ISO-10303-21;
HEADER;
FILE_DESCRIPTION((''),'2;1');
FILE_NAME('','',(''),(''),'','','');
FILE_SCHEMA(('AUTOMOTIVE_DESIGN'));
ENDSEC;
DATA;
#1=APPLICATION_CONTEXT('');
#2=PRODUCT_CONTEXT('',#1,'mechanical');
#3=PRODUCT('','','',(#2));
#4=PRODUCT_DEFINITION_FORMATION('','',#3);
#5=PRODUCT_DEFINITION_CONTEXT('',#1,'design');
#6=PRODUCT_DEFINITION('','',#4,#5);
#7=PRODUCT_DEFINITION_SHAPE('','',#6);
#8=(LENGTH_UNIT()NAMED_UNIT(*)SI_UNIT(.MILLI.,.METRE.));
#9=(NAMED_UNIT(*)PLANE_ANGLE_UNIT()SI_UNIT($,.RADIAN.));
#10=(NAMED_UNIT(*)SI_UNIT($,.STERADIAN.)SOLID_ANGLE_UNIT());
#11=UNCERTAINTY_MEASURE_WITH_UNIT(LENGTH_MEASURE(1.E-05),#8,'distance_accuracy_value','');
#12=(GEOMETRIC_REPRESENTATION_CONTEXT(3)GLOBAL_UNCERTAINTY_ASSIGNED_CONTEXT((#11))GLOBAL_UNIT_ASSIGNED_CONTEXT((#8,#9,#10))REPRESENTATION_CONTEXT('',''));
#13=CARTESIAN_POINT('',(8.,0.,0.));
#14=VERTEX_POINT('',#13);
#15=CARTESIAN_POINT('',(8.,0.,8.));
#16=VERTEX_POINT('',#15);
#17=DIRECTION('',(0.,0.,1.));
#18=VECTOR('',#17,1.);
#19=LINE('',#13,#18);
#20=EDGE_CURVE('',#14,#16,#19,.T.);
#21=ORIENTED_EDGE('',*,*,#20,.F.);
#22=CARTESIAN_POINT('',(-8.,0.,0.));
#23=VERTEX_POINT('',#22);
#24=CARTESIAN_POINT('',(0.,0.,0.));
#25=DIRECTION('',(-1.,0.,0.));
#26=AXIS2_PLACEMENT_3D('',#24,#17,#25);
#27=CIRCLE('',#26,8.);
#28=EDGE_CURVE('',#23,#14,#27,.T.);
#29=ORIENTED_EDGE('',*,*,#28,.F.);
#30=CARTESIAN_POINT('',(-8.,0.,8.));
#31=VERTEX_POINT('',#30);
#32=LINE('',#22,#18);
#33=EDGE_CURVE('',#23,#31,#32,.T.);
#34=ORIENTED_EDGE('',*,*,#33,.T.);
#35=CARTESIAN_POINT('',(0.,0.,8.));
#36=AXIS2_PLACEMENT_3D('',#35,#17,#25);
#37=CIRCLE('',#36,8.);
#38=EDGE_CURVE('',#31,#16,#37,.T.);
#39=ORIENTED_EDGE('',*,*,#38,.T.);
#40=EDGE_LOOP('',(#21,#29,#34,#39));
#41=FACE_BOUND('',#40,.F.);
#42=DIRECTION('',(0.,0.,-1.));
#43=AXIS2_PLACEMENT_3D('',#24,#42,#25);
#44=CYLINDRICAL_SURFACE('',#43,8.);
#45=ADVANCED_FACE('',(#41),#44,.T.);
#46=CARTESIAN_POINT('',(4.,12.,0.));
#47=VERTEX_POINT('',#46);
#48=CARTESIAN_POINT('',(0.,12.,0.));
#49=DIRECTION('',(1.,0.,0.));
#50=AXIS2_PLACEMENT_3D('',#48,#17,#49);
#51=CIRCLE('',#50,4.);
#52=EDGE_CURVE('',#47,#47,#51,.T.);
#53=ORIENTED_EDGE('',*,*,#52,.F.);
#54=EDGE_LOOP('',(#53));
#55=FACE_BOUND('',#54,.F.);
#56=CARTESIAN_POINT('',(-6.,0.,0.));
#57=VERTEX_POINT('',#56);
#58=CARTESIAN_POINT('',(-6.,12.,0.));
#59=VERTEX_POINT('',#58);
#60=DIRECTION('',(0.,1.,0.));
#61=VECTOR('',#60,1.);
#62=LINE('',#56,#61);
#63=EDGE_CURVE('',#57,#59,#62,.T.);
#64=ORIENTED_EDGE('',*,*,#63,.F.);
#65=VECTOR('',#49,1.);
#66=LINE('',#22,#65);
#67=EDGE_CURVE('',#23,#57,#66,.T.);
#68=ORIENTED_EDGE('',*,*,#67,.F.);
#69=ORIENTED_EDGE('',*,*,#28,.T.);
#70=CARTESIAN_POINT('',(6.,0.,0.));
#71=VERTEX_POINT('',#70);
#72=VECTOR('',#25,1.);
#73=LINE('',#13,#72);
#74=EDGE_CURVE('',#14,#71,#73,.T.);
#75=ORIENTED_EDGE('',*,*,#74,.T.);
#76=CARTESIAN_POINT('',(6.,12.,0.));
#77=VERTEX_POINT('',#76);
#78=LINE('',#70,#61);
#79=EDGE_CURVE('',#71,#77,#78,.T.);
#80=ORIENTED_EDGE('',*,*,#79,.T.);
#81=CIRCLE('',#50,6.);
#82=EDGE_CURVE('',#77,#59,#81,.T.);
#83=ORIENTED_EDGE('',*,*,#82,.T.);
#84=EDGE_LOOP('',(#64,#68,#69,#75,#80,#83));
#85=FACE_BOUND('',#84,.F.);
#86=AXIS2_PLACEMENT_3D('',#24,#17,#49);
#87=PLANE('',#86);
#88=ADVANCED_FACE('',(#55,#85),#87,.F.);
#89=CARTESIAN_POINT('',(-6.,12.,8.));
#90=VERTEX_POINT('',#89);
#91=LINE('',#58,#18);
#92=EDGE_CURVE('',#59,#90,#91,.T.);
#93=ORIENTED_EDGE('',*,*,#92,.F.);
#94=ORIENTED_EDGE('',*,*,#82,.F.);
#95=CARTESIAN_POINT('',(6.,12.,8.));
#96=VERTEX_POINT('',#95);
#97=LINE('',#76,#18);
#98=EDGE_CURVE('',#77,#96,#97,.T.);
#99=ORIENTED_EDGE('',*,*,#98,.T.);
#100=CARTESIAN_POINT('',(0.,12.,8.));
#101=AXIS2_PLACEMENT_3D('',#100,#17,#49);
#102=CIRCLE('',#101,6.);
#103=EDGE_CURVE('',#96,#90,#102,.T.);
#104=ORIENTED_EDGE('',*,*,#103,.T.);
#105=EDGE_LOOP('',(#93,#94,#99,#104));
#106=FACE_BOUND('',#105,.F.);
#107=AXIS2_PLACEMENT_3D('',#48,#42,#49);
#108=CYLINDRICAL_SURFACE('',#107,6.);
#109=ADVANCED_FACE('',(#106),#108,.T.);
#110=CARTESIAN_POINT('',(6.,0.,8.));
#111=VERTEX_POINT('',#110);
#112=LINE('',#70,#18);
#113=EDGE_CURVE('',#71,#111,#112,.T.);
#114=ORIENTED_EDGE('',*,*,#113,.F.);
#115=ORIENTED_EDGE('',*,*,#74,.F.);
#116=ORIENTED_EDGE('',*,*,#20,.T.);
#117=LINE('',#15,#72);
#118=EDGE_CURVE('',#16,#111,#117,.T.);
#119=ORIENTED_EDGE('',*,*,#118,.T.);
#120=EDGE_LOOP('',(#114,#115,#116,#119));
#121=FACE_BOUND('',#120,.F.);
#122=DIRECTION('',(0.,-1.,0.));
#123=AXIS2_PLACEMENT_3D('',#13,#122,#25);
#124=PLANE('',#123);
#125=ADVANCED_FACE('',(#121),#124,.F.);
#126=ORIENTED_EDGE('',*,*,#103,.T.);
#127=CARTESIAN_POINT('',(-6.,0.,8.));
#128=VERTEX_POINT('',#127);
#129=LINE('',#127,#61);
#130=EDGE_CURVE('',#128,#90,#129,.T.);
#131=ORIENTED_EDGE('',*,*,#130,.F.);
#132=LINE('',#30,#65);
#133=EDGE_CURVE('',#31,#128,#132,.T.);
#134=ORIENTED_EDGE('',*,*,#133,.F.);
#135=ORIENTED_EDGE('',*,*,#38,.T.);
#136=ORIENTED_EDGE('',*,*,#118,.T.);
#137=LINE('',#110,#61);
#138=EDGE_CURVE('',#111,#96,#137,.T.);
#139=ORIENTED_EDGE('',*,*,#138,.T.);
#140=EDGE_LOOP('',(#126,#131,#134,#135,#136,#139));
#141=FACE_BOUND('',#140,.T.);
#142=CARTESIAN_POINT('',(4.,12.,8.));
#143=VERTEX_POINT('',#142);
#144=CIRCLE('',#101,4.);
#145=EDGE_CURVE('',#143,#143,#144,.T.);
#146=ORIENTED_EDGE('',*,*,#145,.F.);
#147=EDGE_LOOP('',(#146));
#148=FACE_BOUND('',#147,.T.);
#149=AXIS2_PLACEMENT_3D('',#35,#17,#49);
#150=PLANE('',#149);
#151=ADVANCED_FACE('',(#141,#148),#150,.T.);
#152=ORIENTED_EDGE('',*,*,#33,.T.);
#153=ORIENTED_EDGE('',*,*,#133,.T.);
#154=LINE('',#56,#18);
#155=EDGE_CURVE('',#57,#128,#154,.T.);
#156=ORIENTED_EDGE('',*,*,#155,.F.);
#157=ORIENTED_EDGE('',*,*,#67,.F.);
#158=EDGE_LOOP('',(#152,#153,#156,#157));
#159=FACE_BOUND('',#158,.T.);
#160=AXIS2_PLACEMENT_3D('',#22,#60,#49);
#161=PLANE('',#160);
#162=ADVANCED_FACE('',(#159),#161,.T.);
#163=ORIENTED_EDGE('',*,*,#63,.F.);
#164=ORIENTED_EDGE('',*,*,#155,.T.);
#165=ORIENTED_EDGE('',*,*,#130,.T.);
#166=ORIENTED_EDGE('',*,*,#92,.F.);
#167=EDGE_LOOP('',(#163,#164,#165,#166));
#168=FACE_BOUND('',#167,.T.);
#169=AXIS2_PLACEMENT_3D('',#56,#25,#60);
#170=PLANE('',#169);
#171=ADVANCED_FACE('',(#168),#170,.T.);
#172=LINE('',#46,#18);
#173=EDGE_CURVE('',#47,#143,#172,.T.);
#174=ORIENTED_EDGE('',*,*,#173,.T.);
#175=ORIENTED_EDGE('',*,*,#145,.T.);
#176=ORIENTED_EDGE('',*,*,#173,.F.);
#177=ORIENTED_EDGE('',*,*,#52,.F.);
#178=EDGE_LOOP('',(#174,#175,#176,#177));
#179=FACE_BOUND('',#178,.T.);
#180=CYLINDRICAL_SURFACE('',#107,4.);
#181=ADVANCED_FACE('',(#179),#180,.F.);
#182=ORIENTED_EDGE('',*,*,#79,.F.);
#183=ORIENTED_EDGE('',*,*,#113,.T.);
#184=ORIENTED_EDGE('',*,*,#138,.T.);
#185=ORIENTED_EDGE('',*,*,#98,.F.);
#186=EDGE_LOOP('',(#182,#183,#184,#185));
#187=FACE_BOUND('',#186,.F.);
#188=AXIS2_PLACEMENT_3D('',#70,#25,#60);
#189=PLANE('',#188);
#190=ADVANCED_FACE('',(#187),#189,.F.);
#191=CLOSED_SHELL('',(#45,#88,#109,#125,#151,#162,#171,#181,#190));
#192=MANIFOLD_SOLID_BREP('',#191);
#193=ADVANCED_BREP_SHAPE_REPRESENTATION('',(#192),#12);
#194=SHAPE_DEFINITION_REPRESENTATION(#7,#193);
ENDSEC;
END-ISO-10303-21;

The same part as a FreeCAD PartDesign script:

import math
import FreeCAD as App
import Part
import Sketcher

V = App.Vector
Q = App.Units.Quantity

doc = App.newDocument("Part")
body = doc.addObject("PartDesign::Body", "Body")

# Sketch on XY plane
sketch1 = body.newObject("Sketcher::SketchObject", "Sketch")
sketch1.AttachmentSupport = (doc.getObject("XY_Plane"), [""])
sketch1.MapMode = "FlatFace"
sketch1.addGeometry([
    Part.LineSegment(V(-6, 12, 0), V(-6, 0, 0)),  # 0
    Part.LineSegment(V(-6, 0, 0), V(-8, 0, 0)),  # 1
    Part.ArcOfCircle(Part.Circle(V(0, 0, 0), V(0, 0, 1), 8), math.radians(180), math.radians(360)),  # 2
    Part.LineSegment(V(8, 0, 0), V(6, 0, 0)),  # 3
    Part.LineSegment(V(6, 0, 0), V(6, 12, 0)),  # 4
    Part.ArcOfCircle(Part.Circle(V(0, 12, 0), V(0, 0, 1), 6), math.radians(0), math.radians(180)),  # 5
    Part.Circle(V(0, 12, 0), V(0, 0, 1), 4),  # 6
], False)
sketch1.addConstraint([
    Sketcher.Constraint("Coincident", 0, 2, 1, 1),
    Sketcher.Constraint("Coincident", 1, 2, 2, 1),
    Sketcher.Constraint("Coincident", 2, 2, 3, 1),
    Sketcher.Constraint("Coincident", 3, 2, 4, 1),
    Sketcher.Constraint("Tangent", 4, 2, 5, 1),
    Sketcher.Constraint("Tangent", 5, 2, 0, 1),
    Sketcher.Constraint("Vertical", 0),
    Sketcher.Constraint("Horizontal", 1),
    Sketcher.Constraint("Horizontal", 3),
    Sketcher.Constraint("Vertical", 4),
    Sketcher.Constraint("Coincident", 2, 3, -1, 1),
    Sketcher.Constraint("Coincident", 6, 3, 5, 3),
    Sketcher.Constraint("Symmetric", 0, 2, 3, 2, -1, 1),
    Sketcher.Constraint("PointOnObject", 0, 2, -1),
    Sketcher.Constraint("Diameter", 6, Q("8 mm")),
    Sketcher.Constraint("Radius", 2, Q("8 mm")),
    Sketcher.Constraint("DistanceX", 1, 2, 1, 1, Q("2 mm")),
    Sketcher.Constraint("DistanceY", 0, 2, 0, 1, Q("12 mm")),
])
pad1 = body.newObject("PartDesign::Pad", "Pad")
pad1.Profile = sketch1
pad1.Length = 8

doc.recompute()
